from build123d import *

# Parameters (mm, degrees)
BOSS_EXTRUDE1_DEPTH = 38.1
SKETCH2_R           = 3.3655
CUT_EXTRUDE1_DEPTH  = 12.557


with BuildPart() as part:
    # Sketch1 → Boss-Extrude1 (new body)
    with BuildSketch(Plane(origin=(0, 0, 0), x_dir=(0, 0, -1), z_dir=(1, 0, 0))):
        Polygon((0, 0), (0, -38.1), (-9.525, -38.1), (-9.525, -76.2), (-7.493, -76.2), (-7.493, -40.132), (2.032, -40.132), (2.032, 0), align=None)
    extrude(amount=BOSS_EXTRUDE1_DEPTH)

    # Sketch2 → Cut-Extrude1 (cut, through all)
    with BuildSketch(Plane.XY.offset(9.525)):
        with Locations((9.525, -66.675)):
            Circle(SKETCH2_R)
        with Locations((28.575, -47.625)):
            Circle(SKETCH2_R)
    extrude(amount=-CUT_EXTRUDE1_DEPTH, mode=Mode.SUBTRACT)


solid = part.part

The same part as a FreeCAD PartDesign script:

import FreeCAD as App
import Part
import Sketcher
from FreeCAD import Vector
Q = App.Units.Quantity


def add_polygon(sketch, points):
    """Adds a closed chain of lines whose ends are joined by coincident constraints."""
    first, n = sketch.GeometryCount, len(points)
    for a, b in zip(points, points[1:] + points[:1]):
        sketch.addGeometry(Part.LineSegment(App.Vector(*a, 0), App.Vector(*b, 0)), False)
    for i in range(n):
        sketch.addConstraint(Sketcher.Constraint("Coincident", first + i, 2, first + (i + 1) % n, 1))

doc = App.newDocument("Part")
params = doc.addObject("Spreadsheet::Sheet", "Params")
for row, (alias, value) in enumerate([
    ("sketch1_width", "1.5 in"),
    ("sketch1_width2", "1.42 in"),
    ("sketch1_height", "0.08 in"),
    ("sketch1_height2", "0.375 in"),
    ("pad1_length", "1.5 in"),
    ("sketch2_diameter", "0.265 in"),
], start=1):
    params.set(f"A{row}", alias)
    params.set(f"B{row}", "=" + value)
    params.setAlias(f"B{row}", alias)

body = doc.addObject("PartDesign::Body", "Body")

sketch1 = body.newObject("Sketcher::SketchObject", "Sketch")
sketch1.AttachmentSupport = (doc.getObject("YZ_Plane"), [""])
sketch1.MapMode = "FlatFace"
add_polygon(sketch1, [(0, 0), (-38.1, 0), (-38.1, 9.5), (-76.2, 9.5), (-76.2, 7.5), (-40.1, 7.5), (-40.1, -2), (0, -2)])
sketch1.addConstraint(Sketcher.Constraint("Horizontal", 0))
sketch1.addConstraint(Sketcher.Constraint("Vertical", 1))
sketch1.addConstraint(Sketcher.Constraint("Horizontal", 2))
sketch1.addConstraint(Sketcher.Constraint("Vertical", 3))
sketch1.addConstraint(Sketcher.Constraint("Horizontal", 4))
sketch1.addConstraint(Sketcher.Constraint("Vertical", 5))
sketch1.addConstraint(Sketcher.Constraint("Horizontal", 6))
sketch1.addConstraint(Sketcher.Constraint("Vertical", 7))
sketch1.addConstraint(Sketcher.Constraint("Coincident", 7, 2, -1, 1))
sketch1.addConstraint(Sketcher.Constraint("Equal", 0, 2))
sketch1.addConstraint(Sketcher.Constraint("Equal", 1, 5))
sketch1.addConstraint(Sketcher.Constraint("DistanceX", 0, 2, 0, 1, Q("1.5 in")))
sketch1.addConstraint(Sketcher.Constraint("DistanceX", 4, 1, 4, 2, Q("1.42 in")))
sketch1.addConstraint(Sketcher.Constraint("DistanceY", 3, 2, 3, 1, Q("0.08 in")))
sketch1.addConstraint(Sketcher.Constraint("DistanceY", 1, 1, 1, 2, Q("0.375 in")))
sketch1.setExpression("Constraints[19]", "Params.sketch1_width")
sketch1.setExpression("Constraints[20]", "Params.sketch1_width2")
sketch1.setExpression("Constraints[21]", "Params.sketch1_height")
sketch1.setExpression("Constraints[22]", "Params.sketch1_height2")
pad1 = body.newObject("PartDesign::Pad", "Pad")
pad1.Profile = sketch1
pad1.setExpression("Length", "Params.pad1_length")

sketch2 = body.newObject("Sketcher::SketchObject", "Sketch001")
sketch2.AttachmentSupport = (doc.getObject("XY_Plane"), [""])
sketch2.MapMode = "FlatFace"
sketch2.AttachmentOffset = App.Placement(Vector(0, 0, 0.375 * 25.4), App.Rotation())
sketch2.addGeometry(Part.Circle(Vector(9.5, -66.7, 0), Vector(0, 0, 1), 3.4), False)
sketch2.addGeometry(Part.Circle(Vector(28.6, -47.6, 0), Vector(0, 0, 1), 3.4), False)
sketch2.addConstraint(Sketcher.Constraint("Equal", 0, 1))
sketch2.addConstraint(Sketcher.Constraint("Diameter", 0, Q("0.265 in")))
sketch2.addConstraint(Sketcher.Constraint("DistanceX", 0, 3, 1, 3, Q("0.75 in")))
sketch2.addConstraint(Sketcher.Constraint("DistanceY", 0, 3, 1, 3, Q("0.75 in")))
sketch2.addConstraint(Sketcher.Constraint("DistanceX", -1, 1, 0, 3, Q("0.375 in")))
sketch2.addConstraint(Sketcher.Constraint("DistanceY", 0, 3, -1, 1, Q("2.625 in")))
sketch2.setExpression("Constraints[1]", "Params.sketch2_diameter")
pocket1 = body.newObject("PartDesign::Pocket", "Pocket")
pocket1.Profile = sketch2
pocket1.Type = "ThroughAll"

doc.recompute()
